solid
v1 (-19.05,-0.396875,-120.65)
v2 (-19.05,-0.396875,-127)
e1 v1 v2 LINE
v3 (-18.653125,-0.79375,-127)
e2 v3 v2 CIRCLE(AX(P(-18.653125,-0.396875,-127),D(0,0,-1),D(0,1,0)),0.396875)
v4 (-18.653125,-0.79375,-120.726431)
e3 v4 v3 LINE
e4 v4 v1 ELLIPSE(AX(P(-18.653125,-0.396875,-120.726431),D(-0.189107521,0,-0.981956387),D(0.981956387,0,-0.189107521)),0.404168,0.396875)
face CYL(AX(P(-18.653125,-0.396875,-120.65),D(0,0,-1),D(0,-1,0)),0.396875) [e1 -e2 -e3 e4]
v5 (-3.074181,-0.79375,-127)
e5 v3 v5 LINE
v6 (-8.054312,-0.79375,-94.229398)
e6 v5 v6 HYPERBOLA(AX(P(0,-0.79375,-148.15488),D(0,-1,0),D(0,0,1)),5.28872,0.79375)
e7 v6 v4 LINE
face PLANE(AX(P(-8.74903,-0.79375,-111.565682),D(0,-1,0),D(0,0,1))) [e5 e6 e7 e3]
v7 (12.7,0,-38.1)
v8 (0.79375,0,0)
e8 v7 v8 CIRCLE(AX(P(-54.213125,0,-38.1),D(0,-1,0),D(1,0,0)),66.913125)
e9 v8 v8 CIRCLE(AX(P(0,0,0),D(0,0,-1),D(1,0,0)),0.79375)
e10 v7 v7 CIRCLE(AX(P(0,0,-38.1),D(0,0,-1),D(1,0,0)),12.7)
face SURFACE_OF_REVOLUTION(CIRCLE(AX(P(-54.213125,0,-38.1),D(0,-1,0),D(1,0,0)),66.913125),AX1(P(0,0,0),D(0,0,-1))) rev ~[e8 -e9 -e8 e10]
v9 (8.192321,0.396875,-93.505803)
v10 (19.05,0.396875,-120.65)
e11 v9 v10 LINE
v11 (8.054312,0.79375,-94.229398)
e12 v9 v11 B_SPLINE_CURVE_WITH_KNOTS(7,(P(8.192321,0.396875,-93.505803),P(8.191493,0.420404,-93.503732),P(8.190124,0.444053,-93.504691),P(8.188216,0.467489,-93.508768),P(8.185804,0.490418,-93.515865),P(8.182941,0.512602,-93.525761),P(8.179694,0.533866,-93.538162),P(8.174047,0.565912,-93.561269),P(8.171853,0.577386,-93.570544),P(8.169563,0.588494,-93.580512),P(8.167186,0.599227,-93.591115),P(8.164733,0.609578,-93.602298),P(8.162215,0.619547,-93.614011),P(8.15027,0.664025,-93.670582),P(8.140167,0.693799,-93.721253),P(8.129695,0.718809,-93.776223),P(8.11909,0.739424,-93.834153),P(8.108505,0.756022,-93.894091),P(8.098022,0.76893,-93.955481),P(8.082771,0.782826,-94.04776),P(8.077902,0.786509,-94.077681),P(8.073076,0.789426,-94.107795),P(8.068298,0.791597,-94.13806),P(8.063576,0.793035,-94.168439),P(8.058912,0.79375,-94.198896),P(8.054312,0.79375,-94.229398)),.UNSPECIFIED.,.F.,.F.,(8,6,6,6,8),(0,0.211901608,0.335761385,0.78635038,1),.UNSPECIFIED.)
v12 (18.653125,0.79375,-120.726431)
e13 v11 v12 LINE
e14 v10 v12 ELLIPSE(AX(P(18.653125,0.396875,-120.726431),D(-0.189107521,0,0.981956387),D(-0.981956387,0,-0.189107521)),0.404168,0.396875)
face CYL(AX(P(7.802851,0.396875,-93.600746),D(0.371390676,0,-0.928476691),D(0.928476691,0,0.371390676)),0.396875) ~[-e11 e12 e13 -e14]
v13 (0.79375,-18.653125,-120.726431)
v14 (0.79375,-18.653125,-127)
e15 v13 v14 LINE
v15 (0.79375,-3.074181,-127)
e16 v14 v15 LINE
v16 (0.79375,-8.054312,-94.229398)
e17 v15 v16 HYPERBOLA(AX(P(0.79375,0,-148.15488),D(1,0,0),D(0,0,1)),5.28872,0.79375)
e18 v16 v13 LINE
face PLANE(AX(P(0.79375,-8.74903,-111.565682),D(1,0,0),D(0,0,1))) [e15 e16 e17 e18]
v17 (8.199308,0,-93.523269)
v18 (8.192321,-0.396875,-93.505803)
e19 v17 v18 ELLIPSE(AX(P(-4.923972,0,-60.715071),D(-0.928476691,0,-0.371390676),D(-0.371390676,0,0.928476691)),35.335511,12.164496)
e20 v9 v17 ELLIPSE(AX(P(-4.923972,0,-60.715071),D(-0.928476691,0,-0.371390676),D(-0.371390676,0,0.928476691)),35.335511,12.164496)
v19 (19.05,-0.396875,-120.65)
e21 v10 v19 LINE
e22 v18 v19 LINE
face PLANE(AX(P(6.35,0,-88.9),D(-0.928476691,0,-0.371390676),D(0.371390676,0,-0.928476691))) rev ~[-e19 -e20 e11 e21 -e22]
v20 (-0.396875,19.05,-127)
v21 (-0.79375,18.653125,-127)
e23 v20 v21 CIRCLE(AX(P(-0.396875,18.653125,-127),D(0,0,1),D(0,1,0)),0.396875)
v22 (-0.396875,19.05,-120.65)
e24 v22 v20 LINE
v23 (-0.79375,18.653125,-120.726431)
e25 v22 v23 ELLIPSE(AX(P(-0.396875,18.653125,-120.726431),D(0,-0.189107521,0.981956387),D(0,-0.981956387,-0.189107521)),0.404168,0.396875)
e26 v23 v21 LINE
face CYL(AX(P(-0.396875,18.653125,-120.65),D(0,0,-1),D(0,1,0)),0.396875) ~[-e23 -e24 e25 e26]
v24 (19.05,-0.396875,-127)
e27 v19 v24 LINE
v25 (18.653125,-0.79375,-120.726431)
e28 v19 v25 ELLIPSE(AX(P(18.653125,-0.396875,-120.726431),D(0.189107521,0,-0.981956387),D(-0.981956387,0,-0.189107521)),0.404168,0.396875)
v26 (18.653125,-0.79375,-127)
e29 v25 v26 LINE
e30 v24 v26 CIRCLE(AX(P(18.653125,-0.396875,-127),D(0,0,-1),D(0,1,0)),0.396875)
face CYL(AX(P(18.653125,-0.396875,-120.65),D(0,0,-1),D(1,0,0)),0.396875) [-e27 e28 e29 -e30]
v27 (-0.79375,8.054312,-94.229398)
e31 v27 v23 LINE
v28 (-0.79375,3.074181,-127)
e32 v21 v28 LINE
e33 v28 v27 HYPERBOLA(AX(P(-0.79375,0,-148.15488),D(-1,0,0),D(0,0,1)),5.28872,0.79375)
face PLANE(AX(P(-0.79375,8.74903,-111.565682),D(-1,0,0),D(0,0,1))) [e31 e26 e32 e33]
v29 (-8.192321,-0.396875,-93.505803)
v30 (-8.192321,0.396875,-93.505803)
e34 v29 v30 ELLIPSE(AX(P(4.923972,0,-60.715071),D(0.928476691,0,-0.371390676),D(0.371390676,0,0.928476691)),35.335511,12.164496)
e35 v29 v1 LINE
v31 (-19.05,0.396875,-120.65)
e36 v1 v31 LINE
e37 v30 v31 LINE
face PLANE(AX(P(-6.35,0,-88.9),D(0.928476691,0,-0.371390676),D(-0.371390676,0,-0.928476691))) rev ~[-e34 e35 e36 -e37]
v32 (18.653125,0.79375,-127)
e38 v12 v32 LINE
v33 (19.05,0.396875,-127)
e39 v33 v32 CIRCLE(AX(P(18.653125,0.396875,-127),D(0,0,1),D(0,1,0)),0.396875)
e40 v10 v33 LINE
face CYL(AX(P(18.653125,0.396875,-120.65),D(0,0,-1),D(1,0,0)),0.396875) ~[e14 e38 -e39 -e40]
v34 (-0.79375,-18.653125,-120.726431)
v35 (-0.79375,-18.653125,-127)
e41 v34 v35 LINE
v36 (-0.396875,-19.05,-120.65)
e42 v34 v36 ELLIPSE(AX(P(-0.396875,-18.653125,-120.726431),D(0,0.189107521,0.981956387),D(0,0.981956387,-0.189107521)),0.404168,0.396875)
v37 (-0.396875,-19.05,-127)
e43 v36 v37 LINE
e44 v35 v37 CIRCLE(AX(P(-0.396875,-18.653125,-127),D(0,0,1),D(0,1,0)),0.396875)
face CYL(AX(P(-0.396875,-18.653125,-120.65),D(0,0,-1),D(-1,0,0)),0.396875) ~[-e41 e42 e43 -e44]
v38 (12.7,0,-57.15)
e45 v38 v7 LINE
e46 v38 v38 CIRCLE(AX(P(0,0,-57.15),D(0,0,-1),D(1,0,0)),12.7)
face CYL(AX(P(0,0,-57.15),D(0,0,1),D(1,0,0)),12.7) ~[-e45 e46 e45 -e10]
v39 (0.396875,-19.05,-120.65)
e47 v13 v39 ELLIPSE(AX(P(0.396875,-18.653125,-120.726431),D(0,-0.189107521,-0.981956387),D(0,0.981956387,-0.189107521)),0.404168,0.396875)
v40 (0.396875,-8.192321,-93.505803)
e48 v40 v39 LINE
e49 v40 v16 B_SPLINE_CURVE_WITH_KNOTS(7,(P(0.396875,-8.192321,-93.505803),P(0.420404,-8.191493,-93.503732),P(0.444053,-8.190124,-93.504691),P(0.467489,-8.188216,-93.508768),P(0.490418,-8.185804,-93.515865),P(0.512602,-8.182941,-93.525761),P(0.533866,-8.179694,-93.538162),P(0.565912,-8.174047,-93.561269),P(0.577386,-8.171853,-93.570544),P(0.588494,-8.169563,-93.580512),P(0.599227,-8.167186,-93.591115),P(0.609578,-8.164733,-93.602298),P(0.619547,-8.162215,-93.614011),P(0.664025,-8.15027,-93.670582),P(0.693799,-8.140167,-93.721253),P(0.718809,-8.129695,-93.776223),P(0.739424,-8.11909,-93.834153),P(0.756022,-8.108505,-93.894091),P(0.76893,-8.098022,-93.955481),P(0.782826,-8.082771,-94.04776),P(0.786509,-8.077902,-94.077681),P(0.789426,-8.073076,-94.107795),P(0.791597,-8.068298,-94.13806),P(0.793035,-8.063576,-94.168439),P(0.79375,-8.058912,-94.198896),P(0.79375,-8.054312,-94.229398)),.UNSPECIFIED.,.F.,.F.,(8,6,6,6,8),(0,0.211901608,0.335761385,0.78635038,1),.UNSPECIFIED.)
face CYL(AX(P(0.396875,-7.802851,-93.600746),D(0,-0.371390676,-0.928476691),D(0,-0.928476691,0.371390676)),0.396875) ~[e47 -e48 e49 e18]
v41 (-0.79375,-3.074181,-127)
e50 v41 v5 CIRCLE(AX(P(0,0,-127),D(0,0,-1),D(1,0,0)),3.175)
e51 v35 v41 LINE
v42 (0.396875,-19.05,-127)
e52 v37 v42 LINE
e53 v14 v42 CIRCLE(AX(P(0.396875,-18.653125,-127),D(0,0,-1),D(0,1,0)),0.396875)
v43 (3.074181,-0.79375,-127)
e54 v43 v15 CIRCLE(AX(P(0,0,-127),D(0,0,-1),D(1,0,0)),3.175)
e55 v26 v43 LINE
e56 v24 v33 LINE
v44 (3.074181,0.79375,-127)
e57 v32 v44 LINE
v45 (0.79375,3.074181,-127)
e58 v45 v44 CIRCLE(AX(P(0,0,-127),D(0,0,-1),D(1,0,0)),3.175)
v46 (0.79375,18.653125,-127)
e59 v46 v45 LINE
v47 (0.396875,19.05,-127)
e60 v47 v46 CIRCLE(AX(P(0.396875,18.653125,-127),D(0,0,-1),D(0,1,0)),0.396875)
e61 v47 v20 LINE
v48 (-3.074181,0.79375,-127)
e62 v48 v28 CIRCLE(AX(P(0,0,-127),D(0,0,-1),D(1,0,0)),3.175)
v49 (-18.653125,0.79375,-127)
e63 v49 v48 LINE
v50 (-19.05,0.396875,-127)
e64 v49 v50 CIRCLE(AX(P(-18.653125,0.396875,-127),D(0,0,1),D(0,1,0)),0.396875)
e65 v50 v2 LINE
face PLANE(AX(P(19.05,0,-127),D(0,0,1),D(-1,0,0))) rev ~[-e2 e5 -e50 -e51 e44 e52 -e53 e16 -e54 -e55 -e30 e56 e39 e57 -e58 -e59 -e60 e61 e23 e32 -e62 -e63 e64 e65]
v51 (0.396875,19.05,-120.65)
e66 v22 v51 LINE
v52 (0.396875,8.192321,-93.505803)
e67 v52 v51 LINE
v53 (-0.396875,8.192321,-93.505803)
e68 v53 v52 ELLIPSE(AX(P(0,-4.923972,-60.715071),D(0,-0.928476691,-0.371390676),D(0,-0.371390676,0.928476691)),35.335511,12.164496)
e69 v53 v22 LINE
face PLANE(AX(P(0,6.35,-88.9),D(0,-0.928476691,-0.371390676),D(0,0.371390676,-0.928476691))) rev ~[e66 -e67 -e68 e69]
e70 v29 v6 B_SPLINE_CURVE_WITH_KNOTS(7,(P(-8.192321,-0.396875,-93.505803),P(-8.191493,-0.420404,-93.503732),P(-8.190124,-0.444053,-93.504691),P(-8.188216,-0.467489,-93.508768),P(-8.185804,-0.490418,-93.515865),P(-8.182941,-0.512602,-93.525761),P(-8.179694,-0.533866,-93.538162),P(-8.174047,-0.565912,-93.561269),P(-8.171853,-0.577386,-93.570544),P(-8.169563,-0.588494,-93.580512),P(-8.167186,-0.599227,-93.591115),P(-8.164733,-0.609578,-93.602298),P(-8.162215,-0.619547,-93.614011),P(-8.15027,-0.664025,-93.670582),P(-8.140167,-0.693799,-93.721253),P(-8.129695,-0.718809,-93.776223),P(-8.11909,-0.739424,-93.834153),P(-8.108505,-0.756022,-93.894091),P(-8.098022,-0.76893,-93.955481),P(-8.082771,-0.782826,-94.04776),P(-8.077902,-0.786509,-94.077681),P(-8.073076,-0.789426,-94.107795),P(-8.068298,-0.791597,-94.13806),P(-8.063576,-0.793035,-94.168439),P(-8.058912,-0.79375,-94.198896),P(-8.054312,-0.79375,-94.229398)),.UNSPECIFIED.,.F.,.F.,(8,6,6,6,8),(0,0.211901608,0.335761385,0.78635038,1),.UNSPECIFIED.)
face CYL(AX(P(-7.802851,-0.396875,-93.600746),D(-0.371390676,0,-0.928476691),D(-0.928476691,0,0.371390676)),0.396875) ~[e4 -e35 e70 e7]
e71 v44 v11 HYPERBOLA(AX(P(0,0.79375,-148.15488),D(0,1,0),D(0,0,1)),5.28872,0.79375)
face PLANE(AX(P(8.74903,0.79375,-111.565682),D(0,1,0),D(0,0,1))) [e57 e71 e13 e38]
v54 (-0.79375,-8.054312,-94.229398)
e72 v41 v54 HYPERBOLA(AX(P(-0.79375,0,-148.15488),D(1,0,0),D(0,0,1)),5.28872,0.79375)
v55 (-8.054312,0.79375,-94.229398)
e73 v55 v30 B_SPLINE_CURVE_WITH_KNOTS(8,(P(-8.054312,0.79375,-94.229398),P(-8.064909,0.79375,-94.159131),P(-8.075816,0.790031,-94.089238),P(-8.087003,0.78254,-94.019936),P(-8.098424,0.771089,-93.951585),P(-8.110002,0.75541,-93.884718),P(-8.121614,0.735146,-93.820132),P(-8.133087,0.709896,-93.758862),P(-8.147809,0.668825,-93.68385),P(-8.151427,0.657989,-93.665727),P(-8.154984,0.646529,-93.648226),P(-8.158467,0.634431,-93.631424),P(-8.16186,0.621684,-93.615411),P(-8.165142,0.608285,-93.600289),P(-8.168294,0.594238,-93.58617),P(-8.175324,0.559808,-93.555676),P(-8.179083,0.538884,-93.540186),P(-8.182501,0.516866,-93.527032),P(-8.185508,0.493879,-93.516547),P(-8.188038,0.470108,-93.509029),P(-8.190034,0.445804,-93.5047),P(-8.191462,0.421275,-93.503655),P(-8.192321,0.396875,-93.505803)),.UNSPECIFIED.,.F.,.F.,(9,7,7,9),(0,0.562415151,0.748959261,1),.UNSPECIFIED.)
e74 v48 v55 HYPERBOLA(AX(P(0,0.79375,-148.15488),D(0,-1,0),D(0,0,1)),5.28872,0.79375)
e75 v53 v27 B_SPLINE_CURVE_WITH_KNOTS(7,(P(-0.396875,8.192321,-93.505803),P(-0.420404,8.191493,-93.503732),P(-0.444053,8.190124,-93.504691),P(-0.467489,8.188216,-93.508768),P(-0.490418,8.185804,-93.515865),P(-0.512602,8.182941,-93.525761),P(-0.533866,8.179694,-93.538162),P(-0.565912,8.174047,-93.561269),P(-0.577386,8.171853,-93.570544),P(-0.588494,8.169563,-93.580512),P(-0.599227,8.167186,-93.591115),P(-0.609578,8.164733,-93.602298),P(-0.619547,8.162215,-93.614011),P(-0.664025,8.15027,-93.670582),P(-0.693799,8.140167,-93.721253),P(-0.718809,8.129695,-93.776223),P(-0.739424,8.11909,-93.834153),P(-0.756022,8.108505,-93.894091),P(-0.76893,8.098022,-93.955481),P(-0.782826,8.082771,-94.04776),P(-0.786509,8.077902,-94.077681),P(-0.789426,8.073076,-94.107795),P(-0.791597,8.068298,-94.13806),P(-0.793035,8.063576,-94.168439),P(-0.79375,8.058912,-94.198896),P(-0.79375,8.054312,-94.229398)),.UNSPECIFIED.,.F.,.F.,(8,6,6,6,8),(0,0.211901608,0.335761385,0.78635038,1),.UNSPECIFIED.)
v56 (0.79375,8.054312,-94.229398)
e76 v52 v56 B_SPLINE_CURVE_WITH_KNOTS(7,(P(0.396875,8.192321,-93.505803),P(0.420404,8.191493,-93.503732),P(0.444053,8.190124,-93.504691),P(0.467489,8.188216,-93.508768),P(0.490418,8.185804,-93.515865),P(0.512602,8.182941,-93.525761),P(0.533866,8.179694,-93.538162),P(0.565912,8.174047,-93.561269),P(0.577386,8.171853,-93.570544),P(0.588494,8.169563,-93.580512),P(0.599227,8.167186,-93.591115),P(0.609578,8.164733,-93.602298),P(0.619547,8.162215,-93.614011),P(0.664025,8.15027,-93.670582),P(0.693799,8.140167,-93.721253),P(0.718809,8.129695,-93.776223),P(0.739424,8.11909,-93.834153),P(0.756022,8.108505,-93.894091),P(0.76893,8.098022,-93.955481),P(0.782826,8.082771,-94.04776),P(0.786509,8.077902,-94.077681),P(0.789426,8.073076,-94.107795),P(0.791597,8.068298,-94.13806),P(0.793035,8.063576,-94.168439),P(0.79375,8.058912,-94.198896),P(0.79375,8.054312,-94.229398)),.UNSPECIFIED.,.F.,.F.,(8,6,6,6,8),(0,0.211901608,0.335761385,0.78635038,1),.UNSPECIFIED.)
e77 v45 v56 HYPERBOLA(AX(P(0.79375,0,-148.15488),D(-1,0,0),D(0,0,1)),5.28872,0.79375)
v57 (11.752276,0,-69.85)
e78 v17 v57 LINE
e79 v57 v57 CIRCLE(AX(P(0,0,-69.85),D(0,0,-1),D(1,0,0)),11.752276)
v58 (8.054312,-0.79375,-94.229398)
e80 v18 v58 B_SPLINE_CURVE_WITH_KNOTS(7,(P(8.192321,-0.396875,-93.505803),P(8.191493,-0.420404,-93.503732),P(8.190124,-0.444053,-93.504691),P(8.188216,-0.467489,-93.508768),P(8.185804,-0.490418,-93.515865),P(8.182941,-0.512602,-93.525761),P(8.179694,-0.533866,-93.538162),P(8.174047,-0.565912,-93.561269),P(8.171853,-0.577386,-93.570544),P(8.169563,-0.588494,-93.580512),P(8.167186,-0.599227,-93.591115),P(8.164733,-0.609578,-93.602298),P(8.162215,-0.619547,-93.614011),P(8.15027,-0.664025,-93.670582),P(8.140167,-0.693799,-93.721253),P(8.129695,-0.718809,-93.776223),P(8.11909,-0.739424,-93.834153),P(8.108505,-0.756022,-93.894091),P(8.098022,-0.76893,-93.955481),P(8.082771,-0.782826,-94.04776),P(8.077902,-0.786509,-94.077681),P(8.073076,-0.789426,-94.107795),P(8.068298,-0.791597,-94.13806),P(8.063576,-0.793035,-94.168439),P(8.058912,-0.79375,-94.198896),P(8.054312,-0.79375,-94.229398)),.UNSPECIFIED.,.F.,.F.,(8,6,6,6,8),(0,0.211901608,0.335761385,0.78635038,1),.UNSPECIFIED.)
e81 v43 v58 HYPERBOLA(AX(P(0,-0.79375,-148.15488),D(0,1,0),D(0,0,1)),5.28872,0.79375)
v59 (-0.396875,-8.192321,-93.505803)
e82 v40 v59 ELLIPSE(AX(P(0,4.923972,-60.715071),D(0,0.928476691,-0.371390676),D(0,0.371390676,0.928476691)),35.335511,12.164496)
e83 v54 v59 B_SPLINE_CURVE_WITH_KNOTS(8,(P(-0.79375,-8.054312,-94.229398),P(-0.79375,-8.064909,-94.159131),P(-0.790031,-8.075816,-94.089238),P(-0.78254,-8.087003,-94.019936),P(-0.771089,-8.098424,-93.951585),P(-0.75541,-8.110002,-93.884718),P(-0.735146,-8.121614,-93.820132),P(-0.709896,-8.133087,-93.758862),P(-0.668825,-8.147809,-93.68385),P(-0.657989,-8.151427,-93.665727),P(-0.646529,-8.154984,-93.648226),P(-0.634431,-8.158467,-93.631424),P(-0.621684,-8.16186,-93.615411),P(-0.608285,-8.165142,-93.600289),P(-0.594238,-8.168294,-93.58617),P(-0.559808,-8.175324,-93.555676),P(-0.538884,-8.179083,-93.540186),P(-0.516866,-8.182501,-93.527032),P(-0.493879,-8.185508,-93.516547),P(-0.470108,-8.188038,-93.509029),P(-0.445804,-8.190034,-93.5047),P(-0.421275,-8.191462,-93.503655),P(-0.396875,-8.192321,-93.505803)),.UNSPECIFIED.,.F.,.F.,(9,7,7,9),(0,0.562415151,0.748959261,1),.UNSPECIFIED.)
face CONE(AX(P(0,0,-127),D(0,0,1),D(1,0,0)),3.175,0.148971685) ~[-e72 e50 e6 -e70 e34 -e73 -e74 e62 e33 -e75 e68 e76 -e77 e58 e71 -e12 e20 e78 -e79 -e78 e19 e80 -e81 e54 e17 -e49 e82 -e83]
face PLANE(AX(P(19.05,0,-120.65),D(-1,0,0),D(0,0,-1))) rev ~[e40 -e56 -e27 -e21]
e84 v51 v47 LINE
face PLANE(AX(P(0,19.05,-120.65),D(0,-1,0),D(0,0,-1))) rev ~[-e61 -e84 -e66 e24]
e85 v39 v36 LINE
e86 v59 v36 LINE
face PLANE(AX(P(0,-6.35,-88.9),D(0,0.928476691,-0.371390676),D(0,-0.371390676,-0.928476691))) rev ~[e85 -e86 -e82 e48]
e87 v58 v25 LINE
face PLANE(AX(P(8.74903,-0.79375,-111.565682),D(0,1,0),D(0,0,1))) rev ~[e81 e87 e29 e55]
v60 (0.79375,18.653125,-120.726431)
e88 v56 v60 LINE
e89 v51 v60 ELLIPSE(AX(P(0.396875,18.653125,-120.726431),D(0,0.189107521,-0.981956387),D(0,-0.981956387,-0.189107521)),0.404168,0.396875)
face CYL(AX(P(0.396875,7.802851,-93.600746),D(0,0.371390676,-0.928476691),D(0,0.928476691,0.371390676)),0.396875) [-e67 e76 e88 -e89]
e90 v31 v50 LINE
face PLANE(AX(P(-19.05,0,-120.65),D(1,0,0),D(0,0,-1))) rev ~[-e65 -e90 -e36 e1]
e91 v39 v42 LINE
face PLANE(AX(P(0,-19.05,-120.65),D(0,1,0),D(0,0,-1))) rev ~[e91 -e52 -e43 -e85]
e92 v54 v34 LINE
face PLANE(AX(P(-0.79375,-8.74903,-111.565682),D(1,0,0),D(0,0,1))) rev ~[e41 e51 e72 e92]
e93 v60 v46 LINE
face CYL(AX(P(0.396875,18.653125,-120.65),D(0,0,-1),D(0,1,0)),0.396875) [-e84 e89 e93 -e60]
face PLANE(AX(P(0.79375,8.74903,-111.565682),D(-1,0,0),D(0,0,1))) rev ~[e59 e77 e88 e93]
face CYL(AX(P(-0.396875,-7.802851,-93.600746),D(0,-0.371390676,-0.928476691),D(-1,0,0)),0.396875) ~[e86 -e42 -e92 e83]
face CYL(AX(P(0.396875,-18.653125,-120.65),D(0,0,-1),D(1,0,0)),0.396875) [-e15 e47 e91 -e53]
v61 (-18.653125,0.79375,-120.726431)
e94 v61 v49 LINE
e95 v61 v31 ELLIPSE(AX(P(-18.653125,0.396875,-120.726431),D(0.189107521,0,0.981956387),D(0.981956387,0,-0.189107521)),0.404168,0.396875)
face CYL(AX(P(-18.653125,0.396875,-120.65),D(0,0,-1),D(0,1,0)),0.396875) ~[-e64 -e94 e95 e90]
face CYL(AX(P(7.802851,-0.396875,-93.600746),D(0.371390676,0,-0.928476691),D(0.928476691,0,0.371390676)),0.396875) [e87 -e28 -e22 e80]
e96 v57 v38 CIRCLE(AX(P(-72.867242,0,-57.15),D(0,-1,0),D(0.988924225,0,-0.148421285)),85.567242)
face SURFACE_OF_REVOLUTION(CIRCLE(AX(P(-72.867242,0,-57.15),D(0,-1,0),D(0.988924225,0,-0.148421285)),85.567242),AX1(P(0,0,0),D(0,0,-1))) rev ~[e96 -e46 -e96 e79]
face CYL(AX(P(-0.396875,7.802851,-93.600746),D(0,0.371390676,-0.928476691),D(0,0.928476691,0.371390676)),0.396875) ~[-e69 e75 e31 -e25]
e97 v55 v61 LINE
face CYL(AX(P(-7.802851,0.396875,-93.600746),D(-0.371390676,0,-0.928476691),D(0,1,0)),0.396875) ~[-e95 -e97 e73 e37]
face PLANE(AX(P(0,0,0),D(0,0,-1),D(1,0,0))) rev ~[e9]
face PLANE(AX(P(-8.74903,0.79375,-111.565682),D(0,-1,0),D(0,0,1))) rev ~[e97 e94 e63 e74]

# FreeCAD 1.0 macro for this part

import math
import FreeCAD as App
import Part
import Sketcher
from FreeCAD import Vector
Q = App.Units.Quantity


def edges_at(feature, points):
    """Names of the edges that pass closest to the given points."""
    edges = feature.Shape.Edges
    near = lambda p: min(range(len(edges)), key=lambda i: edges[i].distToShape(Part.Vertex(*p))[0])
    return sorted({f"Edge{near(p) + 1}" for p in points})

doc = App.newDocument("Part")
body = doc.addObject("PartDesign::Body", "Body")

# Sketch on YZ plane
sketch1 = doc.addObject("Sketcher::SketchObject", "Sketch")
body.addObject(sketch1)
sketch1.AttachmentSupport = (doc.YZ_Plane, [""])
sketch1.MapMode = "FlatFace"
sketch1.addGeometry([
    Part.LineSegment(Vector(0.8, 0, 0), Vector(0, 0, 0)),  # 0
    Part.LineSegment(Vector(0, 0, 0), Vector(0, -127, 0)),  # 1
    Part.LineSegment(Vector(0, -127, 0), Vector(3.2, -127, 0)),  # 2
    Part.LineSegment(Vector(3.2, -127, 0), Vector(11.8, -69.8, 0)),  # 3
    Part.ArcOfCircle(Part.Circle(Vector(-72.9, -57.1, 0), Vector(0, 0, 1), 85.6), math.radians(-8.54), math.radians(0)),  # 4
    Part.LineSegment(Vector(12.7, -57.1, 0), Vector(12.7, -38.1, 0)),  # 5
    Part.ArcOfCircle(Part.Circle(Vector(-54.2, -38.1, 0), Vector(0, 0, 1), 66.9), math.radians(0), math.radians(35)),  # 6
], False)
sketch1.addConstraint([
    Sketcher.Constraint("Coincident", 0, 2, 1, 1),
    Sketcher.Constraint("Coincident", 1, 2, 2, 1),
    Sketcher.Constraint("Coincident", 2, 2, 3, 1),
    Sketcher.Constraint("Tangent", 3, 2, 4, 1),
    Sketcher.Constraint("Tangent", 4, 2, 5, 1),
    Sketcher.Constraint("Tangent", 5, 2, 6, 1),
    Sketcher.Constraint("Coincident", 6, 2, 0, 1),
    Sketcher.Constraint("Horizontal", 0),
    Sketcher.Constraint("Vertical", 1),
    Sketcher.Constraint("Horizontal", 2),
    Sketcher.Constraint("Vertical", 5),
    Sketcher.Constraint("Coincident", 0, 2, -1, 1),
    Sketcher.Constraint("DistanceY", 1, 2, 1, 1, Q("5 in")),
    Sketcher.Constraint("DistanceY", 5, 1, 5, 2, Q("0.75 in")),
    Sketcher.Constraint("DistanceY", 6, 3, -1, 1, Q("1.5 in")),
    Sketcher.Constraint("DistanceX", -1, 1, 4, 2, Q("0.5 in")),
    Sketcher.Constraint("DistanceY", 3, 2, 4, 3, Q("0.5 in")),
    Sketcher.Constraint("DistanceX", 0, 2, 0, 1, Q("0.03125 in")),
    Sketcher.Constraint("DistanceX", 2, 1, 2, 2, Q("0.125 in")),
])
revolution = doc.addObject("PartDesign::Revolution", "Revolution")
body.addObject(revolution)
revolution.Profile = sketch1
revolution.ReferenceAxis = (sketch1, ["V_Axis"])
revolution.Angle = 360

# Sketch on YZ plane
sketch2 = doc.addObject("Sketcher::SketchObject", "Sketch001")
body.addObject(sketch2)
sketch2.AttachmentSupport = (doc.YZ_Plane, [""])
sketch2.MapMode = "FlatFace"
sketch2.addGeometry([
    Part.LineSegment(Vector(19, -127, 0), Vector(19, -121, 0)),
    Part.LineSegment(Vector(19, -121, 0), Vector(6, -89, 0)),
    Part.LineSegment(Vector(6, -89, 0), Vector(0, -127, 0)),
    Part.LineSegment(Vector(0, -127, 0), Vector(19, -127, 0)),
], False)
sketch2.addConstraint([
    Sketcher.Constraint("Coincident", 0, 2, 1, 1),
    Sketcher.Constraint("Coincident", 1, 2, 2, 1),
    Sketcher.Constraint("Coincident", 2, 2, 3, 1),
    Sketcher.Constraint("Coincident", 3, 2, 0, 1),
    Sketcher.Constraint("Vertical", 0),
    Sketcher.Constraint("Horizontal", 3),
    Sketcher.Constraint("PointOnObject", 2, 2, -2),
    Sketcher.Constraint("DistanceY", 2, 2, -1, 1, Q("5 in")),
    Sketcher.Constraint("DistanceX", 3, 1, 3, 2, Q("0.75 in")),
    Sketcher.Constraint("DistanceY", 0, 1, 0, 2, Q("0.25 in")),
    Sketcher.Constraint("DistanceY", 1, 2, -1, 1, Q("3.5 in")),
    Sketcher.Constraint("DistanceX", 1, 2, 0, 2, Q("0.5 in")),
])
pad1 = doc.addObject("PartDesign::Pad", "Pad")
body.addObject(pad1)
pad1.Profile = sketch2
pad1.Length = Q("0.0625 in")
pad1.Midplane = True
doc.recompute()

fillet = doc.addObject("PartDesign::Fillet", "Fillet")
body.addObject(fillet)
fillet.Base = (pad1, edges_at(pad1, [
    (-0.794, 19.05, -123.825),
    (0.794, 19.05, -123.825),
    (-0.794, 13.611, -107.052),
    (0.794, 13.611, -107.052),
]))
fillet.Radius = Q("0.015625 in")
doc.recompute()

polarpattern = doc.addObject("PartDesign::PolarPattern", "PolarPattern")
body.addObject(polarpattern)
polarpattern.Originals = [pad1]
polarpattern.Axis = (doc.Z_Axis, [""])
polarpattern.Angle = 360
polarpattern.Occurrences = 4
body.Tip = polarpattern
doc.recompute()

fillet2 = doc.addObject("PartDesign::Fillet", "Fillet001")
body.addObject(fillet2)
fillet2.Base = (polarpattern, edges_at(polarpattern, [
    (-19.05, -0.794, -123.825),
    (-19.05, 0.794, -123.825),
    (-13.611, -0.794, -107.052),
    (-13.611, 0.794, -107.052),
    (0.794, -19.05, -123.825),
    (-0.794, -19.05, -123.825),
    (0.794, -13.611, -107.052),
    (-0.794, -13.611, -107.052),
    (19.05, 0.794, -123.825),
    (19.05, -0.794, -123.825),
    (13.611, 0.794, -107.052),
    (13.611, -0.794, -107.052),
]))
fillet2.Radius = Q("0.015625 in")

doc.recompute()
